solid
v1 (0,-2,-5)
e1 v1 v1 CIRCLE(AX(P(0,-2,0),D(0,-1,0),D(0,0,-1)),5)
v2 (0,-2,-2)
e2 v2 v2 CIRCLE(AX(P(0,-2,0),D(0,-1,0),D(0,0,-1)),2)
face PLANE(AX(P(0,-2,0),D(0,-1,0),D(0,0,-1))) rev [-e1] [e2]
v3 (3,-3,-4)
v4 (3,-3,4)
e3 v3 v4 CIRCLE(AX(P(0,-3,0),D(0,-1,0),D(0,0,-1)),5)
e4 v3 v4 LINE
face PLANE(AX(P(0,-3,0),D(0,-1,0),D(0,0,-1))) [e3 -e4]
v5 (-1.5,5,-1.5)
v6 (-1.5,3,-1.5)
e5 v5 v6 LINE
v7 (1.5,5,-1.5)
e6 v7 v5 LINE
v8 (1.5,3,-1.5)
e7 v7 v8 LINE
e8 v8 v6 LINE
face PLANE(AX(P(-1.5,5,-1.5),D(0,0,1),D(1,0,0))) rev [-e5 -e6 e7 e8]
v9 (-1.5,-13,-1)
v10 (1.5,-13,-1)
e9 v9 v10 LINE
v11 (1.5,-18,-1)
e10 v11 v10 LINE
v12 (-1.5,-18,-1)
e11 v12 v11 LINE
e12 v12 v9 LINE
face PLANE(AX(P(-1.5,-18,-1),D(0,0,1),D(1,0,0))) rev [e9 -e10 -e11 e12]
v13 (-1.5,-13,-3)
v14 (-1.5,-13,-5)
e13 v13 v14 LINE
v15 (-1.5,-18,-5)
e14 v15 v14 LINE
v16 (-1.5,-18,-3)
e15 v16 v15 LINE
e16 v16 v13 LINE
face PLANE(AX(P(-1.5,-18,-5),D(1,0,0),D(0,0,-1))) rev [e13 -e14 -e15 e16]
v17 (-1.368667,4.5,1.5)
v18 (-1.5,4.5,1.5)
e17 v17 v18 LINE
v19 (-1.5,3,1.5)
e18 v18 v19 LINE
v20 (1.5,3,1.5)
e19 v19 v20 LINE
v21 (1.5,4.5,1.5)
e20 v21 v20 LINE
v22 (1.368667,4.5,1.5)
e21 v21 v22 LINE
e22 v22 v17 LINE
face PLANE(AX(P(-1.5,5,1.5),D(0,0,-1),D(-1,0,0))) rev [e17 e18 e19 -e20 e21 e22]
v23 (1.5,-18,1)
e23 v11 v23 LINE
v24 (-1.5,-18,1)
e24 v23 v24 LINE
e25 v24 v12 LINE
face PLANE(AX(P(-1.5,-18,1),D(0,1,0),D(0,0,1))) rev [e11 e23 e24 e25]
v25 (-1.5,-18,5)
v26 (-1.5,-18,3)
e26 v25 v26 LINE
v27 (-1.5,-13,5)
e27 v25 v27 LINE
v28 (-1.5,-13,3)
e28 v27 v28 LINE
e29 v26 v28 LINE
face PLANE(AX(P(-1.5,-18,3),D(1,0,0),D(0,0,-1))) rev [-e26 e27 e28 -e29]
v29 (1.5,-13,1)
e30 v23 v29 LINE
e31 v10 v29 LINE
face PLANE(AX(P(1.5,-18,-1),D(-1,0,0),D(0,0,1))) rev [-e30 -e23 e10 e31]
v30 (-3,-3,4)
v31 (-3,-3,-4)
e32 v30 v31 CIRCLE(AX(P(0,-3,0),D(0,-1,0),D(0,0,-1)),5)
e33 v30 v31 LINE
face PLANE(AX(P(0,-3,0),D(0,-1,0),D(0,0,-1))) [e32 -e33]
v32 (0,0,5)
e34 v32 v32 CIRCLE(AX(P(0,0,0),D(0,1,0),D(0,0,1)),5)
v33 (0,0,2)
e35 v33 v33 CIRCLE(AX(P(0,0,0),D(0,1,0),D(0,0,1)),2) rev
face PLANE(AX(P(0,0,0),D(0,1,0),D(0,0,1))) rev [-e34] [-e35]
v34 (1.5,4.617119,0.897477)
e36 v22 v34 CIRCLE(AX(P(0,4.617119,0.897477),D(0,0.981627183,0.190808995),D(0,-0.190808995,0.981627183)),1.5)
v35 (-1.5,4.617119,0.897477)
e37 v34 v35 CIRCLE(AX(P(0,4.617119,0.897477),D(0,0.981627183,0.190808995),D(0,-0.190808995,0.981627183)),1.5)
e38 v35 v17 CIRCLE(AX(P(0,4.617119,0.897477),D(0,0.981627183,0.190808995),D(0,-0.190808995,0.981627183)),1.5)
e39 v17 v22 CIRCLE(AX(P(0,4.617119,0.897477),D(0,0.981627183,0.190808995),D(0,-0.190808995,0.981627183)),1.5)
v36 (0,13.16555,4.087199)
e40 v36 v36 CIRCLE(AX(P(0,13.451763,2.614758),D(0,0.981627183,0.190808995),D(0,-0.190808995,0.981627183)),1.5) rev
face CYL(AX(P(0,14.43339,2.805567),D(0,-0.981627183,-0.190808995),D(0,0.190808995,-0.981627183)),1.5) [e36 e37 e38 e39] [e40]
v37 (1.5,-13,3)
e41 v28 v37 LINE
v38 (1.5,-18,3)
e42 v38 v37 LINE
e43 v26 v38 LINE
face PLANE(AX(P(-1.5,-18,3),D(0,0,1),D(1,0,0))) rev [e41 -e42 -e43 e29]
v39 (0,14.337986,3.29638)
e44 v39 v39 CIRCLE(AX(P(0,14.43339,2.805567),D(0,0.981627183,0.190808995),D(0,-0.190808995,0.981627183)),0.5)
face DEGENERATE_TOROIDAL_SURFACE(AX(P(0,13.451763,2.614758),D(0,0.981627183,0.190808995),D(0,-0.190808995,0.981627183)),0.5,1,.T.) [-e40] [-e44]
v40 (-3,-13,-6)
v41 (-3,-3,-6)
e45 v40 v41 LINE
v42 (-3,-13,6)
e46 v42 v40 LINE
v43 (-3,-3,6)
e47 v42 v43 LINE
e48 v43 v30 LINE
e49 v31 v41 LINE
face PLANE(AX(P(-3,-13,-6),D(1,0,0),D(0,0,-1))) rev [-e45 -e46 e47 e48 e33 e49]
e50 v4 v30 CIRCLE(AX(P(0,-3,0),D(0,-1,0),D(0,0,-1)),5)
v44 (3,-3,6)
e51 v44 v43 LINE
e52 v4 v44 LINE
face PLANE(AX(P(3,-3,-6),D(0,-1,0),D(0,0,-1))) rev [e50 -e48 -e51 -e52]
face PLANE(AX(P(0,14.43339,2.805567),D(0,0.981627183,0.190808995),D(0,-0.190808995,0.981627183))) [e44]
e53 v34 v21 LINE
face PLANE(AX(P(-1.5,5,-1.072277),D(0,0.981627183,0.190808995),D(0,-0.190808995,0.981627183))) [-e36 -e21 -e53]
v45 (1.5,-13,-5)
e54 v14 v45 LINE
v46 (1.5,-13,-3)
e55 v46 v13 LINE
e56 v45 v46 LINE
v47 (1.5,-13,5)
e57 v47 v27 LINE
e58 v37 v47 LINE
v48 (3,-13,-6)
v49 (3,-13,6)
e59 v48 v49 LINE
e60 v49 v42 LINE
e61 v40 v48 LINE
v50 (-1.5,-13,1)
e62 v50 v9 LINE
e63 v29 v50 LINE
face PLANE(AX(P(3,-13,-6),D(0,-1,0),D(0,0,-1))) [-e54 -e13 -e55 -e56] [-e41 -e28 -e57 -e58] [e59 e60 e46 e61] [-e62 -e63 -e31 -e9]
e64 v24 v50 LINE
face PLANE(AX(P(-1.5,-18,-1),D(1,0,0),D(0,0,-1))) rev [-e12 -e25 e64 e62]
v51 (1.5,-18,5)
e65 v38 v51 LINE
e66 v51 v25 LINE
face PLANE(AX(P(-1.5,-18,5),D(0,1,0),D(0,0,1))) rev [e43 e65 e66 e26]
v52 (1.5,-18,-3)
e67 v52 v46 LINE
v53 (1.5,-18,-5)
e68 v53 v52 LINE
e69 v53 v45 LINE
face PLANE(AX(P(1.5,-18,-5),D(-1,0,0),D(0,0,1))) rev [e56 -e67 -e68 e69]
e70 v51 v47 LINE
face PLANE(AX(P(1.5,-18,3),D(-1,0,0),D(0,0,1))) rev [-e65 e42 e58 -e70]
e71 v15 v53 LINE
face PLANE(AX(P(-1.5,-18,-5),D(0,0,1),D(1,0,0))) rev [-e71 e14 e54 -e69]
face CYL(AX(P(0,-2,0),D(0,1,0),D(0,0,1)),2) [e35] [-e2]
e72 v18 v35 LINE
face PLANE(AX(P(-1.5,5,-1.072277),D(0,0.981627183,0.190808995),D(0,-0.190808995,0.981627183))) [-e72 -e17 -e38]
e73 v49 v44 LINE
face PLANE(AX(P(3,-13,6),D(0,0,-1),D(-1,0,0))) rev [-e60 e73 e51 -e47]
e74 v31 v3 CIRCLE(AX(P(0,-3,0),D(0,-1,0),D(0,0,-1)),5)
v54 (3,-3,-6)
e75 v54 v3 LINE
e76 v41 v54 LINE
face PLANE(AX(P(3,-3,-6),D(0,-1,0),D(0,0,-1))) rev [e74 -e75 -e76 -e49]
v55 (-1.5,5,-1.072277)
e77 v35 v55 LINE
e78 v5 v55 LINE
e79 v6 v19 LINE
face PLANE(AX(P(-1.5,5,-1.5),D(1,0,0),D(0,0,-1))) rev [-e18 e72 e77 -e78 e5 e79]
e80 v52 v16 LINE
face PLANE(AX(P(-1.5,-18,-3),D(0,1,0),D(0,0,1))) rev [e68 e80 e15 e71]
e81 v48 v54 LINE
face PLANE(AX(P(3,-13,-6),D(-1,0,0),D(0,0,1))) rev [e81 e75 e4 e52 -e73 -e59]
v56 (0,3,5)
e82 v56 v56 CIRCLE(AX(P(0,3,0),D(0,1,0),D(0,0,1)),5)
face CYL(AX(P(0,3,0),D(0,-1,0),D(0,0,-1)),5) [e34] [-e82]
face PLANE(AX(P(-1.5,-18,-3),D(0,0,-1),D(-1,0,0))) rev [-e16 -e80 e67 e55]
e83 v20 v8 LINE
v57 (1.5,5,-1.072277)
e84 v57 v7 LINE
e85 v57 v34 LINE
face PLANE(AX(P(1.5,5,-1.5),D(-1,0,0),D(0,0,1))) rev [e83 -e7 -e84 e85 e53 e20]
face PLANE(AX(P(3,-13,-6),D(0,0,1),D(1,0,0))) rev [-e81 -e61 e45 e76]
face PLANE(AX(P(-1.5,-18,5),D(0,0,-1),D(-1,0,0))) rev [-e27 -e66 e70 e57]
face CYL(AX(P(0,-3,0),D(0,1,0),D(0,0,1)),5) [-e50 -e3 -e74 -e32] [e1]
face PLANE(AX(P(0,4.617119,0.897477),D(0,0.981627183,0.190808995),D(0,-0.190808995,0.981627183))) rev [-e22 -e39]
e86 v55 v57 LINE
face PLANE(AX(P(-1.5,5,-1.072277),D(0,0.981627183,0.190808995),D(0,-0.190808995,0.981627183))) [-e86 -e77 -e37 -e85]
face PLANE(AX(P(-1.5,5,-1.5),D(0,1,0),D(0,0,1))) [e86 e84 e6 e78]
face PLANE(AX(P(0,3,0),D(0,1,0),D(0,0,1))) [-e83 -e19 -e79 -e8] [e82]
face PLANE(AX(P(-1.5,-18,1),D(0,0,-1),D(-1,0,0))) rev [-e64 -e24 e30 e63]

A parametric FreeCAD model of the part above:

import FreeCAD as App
import Part
import Sketcher


def edges_at(feature, points):
    """Names of the edges that pass closest to the given points."""
    edges = feature.Shape.Edges
    near = lambda p: min(range(len(edges)), key=lambda i: edges[i].distToShape(Part.Vertex(*p))[0])
    return sorted({f"Edge{near(p) + 1}" for p in points})


def add_polygon(sketch, points):
    """Adds a closed chain of lines whose ends are joined by coincident constraints."""
    first, n = sketch.GeometryCount, len(points)
    for a, b in zip(points, points[1:] + points[:1]):
        sketch.addGeometry(Part.LineSegment(App.Vector(*a, 0), App.Vector(*b, 0)), False)
    for i in range(n):
        sketch.addConstraint(Sketcher.Constraint("Coincident", first + i, 2, first + (i + 1) % n, 1))

doc = App.newDocument("Part")
body = doc.addObject("PartDesign::Body", "Body")

# Sketch on XZ plane
sketch1 = doc.addObject("Sketcher::SketchObject", "Sketch")
body.addObject(sketch1)
sketch1.AttachmentSupport = (doc.XZ_Plane, [""])
sketch1.MapMode = "FlatFace"
sketch1.addGeometry(Part.Circle(App.Vector(0, 0, 0), App.Vector(0, 0, 1), 5), False)
sketch1.addConstraint([
    Sketcher.Constraint("Coincident", 0, 3, -1, 1),
    Sketcher.Constraint("Diameter", 0, 10.0),
])
pad1 = doc.addObject("PartDesign::Pad", "Pad")
body.addObject(pad1)
pad1.Profile = sketch1
pad1.Length = 3
pad1.Reversed = True

# Sketch on XZ plane
sketch2 = doc.addObject("Sketcher::SketchObject", "Sketch001")
body.addObject(sketch2)
sketch2.AttachmentSupport = (doc.XZ_Plane, [""])
sketch2.MapMode = "FlatFace"
sketch2.addGeometry(Part.Circle(App.Vector(0, 0, 0), App.Vector(0, 0, 1), 2), False)
sketch2.addConstraint([
    Sketcher.Constraint("Coincident", 0, 3, -1, 1),
    Sketcher.Constraint("Diameter", 0, 4.0),
])
pad2 = doc.addObject("PartDesign::Pad", "Pad001")
body.addObject(pad2)
pad2.Profile = sketch2
pad2.Length = 2

# Sketch on XZ plane
sketch3 = doc.addObject("Sketcher::SketchObject", "Sketch002")
body.addObject(sketch3)
sketch3.AttachmentSupport = (doc.XZ_Plane, [""])
sketch3.MapMode = "FlatFace"
sketch3.AttachmentOffset = App.Placement(App.Vector(0, 0, 2), App.Rotation())
sketch3.addGeometry(Part.Circle(App.Vector(0, 0, 0), App.Vector(0, 0, 1), 5), False)
sketch3.addConstraint([
    Sketcher.Constraint("Coincident", 0, 3, -1, 1),
    Sketcher.Constraint("Diameter", 0, 10.0),
])
pad3 = doc.addObject("PartDesign::Pad", "Pad002")
body.addObject(pad3)
pad3.Profile = sketch3
pad3.Length = 1

# Sketch on XZ plane
sketch4 = doc.addObject("Sketcher::SketchObject", "Sketch003")
body.addObject(sketch4)
sketch4.AttachmentSupport = (doc.XZ_Plane, [""])
sketch4.MapMode = "FlatFace"
sketch4.AttachmentOffset = App.Placement(App.Vector(0, 0, 3), App.Rotation())
add_polygon(sketch4, [(-3, 6), (-3, -6), (3, -6), (3, 6)])  # lines 0-3
sketch4.addConstraint([
    Sketcher.Constraint("Vertical", 0),
    Sketcher.Constraint("Horizontal", 1),
    Sketcher.Constraint("Vertical", 2),
    Sketcher.Constraint("Horizontal", 3),
    Sketcher.Constraint("Symmetric", 0, 2, 2, 2, -1, 1),
    Sketcher.Constraint("DistanceX", 1, 1, 1, 2, 6.0),
    Sketcher.Constraint("DistanceY", 0, 2, 0, 1, 12.0),
])
pad4 = doc.addObject("PartDesign::Pad", "Pad003")
body.addObject(pad4)
pad4.Profile = sketch4
pad4.Length = 10

# Sketch on XZ plane
sketch5 = doc.addObject("Sketcher::SketchObject", "Sketch004")
body.addObject(sketch5)
sketch5.AttachmentSupport = (doc.XZ_Plane, [""])
sketch5.MapMode = "FlatFace"
sketch5.AttachmentOffset = App.Placement(App.Vector(0, 0, 13), App.Rotation())
add_polygon(sketch5, [(-1.5, 5), (-1.5, 3), (1.5, 3), (1.5, 5)])  # lines 0-3
add_polygon(sketch5, [(-1.5, 1), (-1.5, -1), (1.5, -1), (1.5, 1)])  # lines 4-7
add_polygon(sketch5, [(-1.5, -3), (-1.5, -5), (1.5, -5), (1.5, -3)])  # lines 8-11
sketch5.addConstraint([
    Sketcher.Constraint("Vertical", 0),
    Sketcher.Constraint("Horizontal", 1),
    Sketcher.Constraint("Vertical", 2),
    Sketcher.Constraint("Horizontal", 3),
    Sketcher.Constraint("Vertical", 4),
    Sketcher.Constraint("Horizontal", 5),
    Sketcher.Constraint("Vertical", 6),
    Sketcher.Constraint("Horizontal", 7),
    Sketcher.Constraint("Vertical", 8),
    Sketcher.Constraint("Horizontal", 9),
    Sketcher.Constraint("Vertical", 10),
    Sketcher.Constraint("Horizontal", 11),
    Sketcher.Constraint("Symmetric", 4, 2, 6, 2, -1, 1),
    Sketcher.Constraint("Symmetric", 2, 2, 8, 2, -1, 1),
    Sketcher.Constraint("Symmetric", 0, 2, 10, 2, -1, 1),
    Sketcher.Constraint("Vertical", 3, 2, 4, 2),
    Sketcher.Constraint("Vertical", 2, 2, 5, 2),
    Sketcher.Constraint("Equal", 2, 4),
    Sketcher.Constraint("DistanceX", 1, 1, 1, 2, 3.0),
    Sketcher.Constraint("DistanceY", 0, 2, 0, 1, 2.0),
    Sketcher.Constraint("DistanceY", -1, 1, 0, 2, 3.0),
])
pad5 = doc.addObject("PartDesign::Pad", "Pad004")
body.addObject(pad5)
pad5.Profile = sketch5
pad5.Length = 5

# Sketch on XZ plane
sketch6 = doc.addObject("Sketcher::SketchObject", "Sketch005")
body.addObject(sketch6)
sketch6.AttachmentSupport = (doc.XZ_Plane, [""])
sketch6.MapMode = "FlatFace"
sketch6.AttachmentOffset = App.Placement(App.Vector(0, 0, -3), App.Rotation())
add_polygon(sketch6, [(1.5, 1.5), (1.5, -1.5), (-1.5, -1.5), (-1.5, 1.5)])  # lines 0-3
sketch6.addConstraint([
    Sketcher.Constraint("Vertical", 0),
    Sketcher.Constraint("Horizontal", 1),
    Sketcher.Constraint("Vertical", 2),
    Sketcher.Constraint("Horizontal", 3),
    Sketcher.Constraint("Symmetric", 0, 2, 2, 2, -1, 1),
    Sketcher.Constraint("Equal", 3, 0),
    Sketcher.Constraint("DistanceX", 1, 2, 1, 1, 3.0),
])
pad6 = doc.addObject("PartDesign::Pad", "Pad005")
body.addObject(pad6)
pad6.Profile = sketch6
pad6.Length = 2
pad6.Reversed = True
doc.recompute()

chamfer = doc.addObject("PartDesign::Chamfer", "Chamfer")
body.addObject(chamfer)
chamfer.Base = (pad6, edges_at(pad6, [(0, 5, 1.5)]))
chamfer.ChamferType = "Two distances"
chamfer.Size = 0.5
chamfer.Size2 = 2.572277

# Sketch on an angled plane
sketch7 = doc.addObject("Sketcher::SketchObject", "Sketch006")
body.addObject(sketch7)
sketch7.Placement = App.Placement(App.Vector(0, 4.617119, 0.897477), App.Rotation(App.Vector(-1, 0, 0), App.Vector(0, -0.190808995, 0.981627184), App.Vector(0, 0.981627184, 0.190808995), "ZXY"))
sketch7.addGeometry(Part.Circle(App.Vector(0, 0, 0), App.Vector(0, 0, 1), 1.5), False)
sketch7.addConstraint([
    Sketcher.Constraint("Coincident", 0, 3, -1, 1),
    Sketcher.Constraint("Diameter", 0, 3.0),
])
pad7 = doc.addObject("PartDesign::Pad", "Pad006")
body.addObject(pad7)
pad7.Profile = sketch7
pad7.Length = 10
doc.recompute()

fillet = doc.addObject("PartDesign::Fillet", "Fillet")
body.addObject(fillet)
fillet.Base = (pad7, edges_at(pad7, [(1.5, 14.433, 2.806)]))
fillet.Radius = 1

doc.recompute()
